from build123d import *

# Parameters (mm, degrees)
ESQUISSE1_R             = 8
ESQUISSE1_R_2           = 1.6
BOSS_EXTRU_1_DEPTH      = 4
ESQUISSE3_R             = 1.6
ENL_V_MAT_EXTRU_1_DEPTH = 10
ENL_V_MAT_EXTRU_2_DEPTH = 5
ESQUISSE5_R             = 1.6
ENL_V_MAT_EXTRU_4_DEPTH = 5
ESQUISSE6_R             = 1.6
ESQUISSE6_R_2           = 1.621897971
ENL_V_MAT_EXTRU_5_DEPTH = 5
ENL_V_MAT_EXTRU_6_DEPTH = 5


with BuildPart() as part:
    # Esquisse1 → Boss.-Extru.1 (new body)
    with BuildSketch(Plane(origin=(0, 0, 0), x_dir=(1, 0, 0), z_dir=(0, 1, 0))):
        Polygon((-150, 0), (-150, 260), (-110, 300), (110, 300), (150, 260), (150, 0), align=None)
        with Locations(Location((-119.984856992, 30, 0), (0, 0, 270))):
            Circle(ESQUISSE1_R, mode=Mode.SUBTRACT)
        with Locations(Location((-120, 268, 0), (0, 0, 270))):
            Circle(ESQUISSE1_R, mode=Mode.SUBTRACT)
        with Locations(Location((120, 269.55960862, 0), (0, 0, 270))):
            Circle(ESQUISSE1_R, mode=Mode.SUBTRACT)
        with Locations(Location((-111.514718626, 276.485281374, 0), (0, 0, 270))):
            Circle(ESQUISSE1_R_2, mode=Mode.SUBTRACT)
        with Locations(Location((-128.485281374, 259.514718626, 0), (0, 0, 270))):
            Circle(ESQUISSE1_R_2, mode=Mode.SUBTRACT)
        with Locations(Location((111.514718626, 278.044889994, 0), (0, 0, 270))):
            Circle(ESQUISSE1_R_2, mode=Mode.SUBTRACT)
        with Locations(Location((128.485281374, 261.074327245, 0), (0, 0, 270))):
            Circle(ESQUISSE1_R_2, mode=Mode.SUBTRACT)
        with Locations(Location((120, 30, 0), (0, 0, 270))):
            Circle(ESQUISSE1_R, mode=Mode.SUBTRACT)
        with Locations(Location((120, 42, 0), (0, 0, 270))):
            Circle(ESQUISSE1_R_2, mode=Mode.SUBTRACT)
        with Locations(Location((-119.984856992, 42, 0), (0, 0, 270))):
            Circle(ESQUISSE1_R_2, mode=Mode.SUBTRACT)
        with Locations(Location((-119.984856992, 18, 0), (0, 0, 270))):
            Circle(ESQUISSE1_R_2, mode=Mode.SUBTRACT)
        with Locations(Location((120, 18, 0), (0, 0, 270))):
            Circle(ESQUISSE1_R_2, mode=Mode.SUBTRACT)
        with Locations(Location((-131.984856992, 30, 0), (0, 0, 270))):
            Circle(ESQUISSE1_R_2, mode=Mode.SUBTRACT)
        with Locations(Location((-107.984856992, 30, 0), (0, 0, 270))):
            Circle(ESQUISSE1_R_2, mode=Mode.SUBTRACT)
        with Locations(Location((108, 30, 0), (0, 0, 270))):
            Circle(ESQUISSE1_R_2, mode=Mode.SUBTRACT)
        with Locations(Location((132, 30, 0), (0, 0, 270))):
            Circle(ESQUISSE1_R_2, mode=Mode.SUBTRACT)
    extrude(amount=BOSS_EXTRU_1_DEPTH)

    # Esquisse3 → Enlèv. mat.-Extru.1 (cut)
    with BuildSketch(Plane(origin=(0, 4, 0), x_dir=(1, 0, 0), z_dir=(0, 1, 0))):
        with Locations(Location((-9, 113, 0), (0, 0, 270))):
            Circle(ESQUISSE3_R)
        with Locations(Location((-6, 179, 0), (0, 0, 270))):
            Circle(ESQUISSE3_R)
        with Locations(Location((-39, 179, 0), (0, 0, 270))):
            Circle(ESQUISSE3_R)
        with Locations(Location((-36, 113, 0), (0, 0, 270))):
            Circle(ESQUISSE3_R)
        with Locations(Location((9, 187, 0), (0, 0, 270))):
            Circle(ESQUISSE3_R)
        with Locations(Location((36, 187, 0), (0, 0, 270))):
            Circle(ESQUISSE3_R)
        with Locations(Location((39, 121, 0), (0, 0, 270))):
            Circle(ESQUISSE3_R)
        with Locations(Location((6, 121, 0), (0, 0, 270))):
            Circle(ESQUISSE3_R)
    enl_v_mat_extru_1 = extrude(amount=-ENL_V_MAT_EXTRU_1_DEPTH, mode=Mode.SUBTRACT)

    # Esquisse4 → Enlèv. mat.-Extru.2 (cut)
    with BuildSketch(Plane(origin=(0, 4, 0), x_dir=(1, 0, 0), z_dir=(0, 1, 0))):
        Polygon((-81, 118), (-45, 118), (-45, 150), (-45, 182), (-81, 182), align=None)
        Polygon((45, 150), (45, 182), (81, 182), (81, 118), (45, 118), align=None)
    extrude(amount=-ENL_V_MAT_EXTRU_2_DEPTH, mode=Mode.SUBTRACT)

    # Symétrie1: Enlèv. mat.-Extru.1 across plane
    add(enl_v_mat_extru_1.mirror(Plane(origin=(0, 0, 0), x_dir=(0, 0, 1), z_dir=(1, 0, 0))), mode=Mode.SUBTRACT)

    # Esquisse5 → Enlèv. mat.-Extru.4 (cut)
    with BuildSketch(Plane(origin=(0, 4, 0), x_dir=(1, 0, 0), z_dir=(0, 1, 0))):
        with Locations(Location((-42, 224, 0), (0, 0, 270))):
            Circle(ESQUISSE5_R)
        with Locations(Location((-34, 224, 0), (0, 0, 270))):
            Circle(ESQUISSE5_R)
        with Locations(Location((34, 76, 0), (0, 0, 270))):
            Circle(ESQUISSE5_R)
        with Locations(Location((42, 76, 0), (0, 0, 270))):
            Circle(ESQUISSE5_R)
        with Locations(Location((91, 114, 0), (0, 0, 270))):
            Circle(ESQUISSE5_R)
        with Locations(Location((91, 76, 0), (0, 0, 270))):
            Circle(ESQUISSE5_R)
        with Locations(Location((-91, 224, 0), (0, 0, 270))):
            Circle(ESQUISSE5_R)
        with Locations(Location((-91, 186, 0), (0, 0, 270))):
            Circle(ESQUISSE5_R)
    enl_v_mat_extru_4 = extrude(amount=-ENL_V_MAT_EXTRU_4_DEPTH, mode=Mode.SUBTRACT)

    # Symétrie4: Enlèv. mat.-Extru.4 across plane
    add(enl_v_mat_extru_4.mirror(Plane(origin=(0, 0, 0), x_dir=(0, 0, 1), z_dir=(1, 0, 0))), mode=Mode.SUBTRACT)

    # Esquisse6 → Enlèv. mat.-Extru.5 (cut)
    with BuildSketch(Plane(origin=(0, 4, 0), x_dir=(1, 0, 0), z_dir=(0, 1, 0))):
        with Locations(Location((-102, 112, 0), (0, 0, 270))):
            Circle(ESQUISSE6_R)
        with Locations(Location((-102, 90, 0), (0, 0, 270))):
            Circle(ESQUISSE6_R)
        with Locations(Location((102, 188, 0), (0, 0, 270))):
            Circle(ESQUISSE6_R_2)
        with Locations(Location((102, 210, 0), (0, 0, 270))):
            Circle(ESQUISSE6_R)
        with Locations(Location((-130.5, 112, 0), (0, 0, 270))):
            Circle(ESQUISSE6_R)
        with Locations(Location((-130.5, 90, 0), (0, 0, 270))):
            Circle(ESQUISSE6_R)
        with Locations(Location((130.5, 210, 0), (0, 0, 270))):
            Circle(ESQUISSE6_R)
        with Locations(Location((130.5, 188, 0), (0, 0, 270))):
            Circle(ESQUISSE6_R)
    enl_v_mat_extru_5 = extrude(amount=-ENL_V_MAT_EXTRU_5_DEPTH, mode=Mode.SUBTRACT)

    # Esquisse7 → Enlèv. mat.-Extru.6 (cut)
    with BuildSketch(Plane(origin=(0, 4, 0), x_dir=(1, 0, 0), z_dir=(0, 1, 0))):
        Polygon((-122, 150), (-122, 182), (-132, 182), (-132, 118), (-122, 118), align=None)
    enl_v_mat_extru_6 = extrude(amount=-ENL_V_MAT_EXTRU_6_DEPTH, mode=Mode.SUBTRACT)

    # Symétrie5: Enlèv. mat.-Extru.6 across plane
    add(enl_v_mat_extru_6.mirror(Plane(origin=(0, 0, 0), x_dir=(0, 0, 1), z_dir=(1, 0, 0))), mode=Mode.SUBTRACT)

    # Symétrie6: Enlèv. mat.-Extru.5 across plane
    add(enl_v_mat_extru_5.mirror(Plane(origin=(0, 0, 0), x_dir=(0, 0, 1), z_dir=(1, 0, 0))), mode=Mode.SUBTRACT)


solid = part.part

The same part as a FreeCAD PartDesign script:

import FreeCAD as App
import Part
import Sketcher
from FreeCAD import Vector

doc = App.newDocument("Part")
body = doc.addObject("PartDesign::Body", "Body")

# Sketch on XZ plane
sketch1 = body.newObject("Sketcher::SketchObject", "Sketch")
sketch1.AttachmentSupport = (doc.getObject("XZ_Plane"), [""])
sketch1.MapMode = "FlatFace"
sketch1.addGeometry([
    Part.LineSegment(Vector(-150, -260, 0), Vector(-150, 0, 0)),  # 0
    Part.LineSegment(Vector(-150, 0, 0), Vector(150, 0, 0)),  # 1
    Part.LineSegment(Vector(150, 0, 0), Vector(150, -260, 0)),  # 2
    Part.LineSegment(Vector(150, -260, 0), Vector(110, -300, 0)),  # 3
    Part.LineSegment(Vector(110, -300, 0), Vector(-110, -300, 0)),  # 4
    Part.LineSegment(Vector(-110, -300, 0), Vector(-150, -260, 0)),  # 5
    Part.Circle(Vector(120, -18, 0), Vector(0, 0, 1), 1.6),  # 6
    Part.Circle(Vector(132, -30, 0), Vector(0, 0, 1), 1.6),  # 7
    Part.Circle(Vector(120, -30, 0), Vector(0, 0, 1), 8),  # 8
    Part.Circle(Vector(108, -30, 0), Vector(0, 0, 1), 1.6),  # 9
    Part.Circle(Vector(120, -42, 0), Vector(0, 0, 1), 1.6),  # 10
    Part.Circle(Vector(-108, -30, 0), Vector(0, 0, 1), 1.6),  # 11
    Part.Circle(Vector(-120, -18, 0), Vector(0, 0, 1), 1.6),  # 12
    Part.Circle(Vector(-120, -30, 0), Vector(0, 0, 1), 8),  # 13
    Part.Circle(Vector(-132, -30, 0), Vector(0, 0, 1), 1.6),  # 14
    Part.Circle(Vector(-120, -42, 0), Vector(0, 0, 1), 1.6),  # 15
    Part.Circle(Vector(128.5, -261.1, 0), Vector(0, 0, 1), 1.6),  # 16
    Part.Circle(Vector(120, -269.6, 0), Vector(0, 0, 1), 8),  # 17
    Part.Circle(Vector(111.5, -278, 0), Vector(0, 0, 1), 1.6),  # 18
    Part.Circle(Vector(-128.5, -259.5, 0), Vector(0, 0, 1), 1.6),  # 19
    Part.Circle(Vector(-111.5, -276.5, 0), Vector(0, 0, 1), 1.6),  # 20
    Part.Circle(Vector(-120, -268, 0), Vector(0, 0, 1), 8),  # 21
], False)
sketch1.addConstraint([
    Sketcher.Constraint("Coincident", 0, 2, 1, 1),
    Sketcher.Constraint("Coincident", 1, 2, 2, 1),
    Sketcher.Constraint("Coincident", 2, 2, 3, 1),
    Sketcher.Constraint("Coincident", 3, 2, 4, 1),
    Sketcher.Constraint("Coincident", 4, 2, 5, 1),
    Sketcher.Constraint("Coincident", 5, 2, 0, 1),
    Sketcher.Constraint("Vertical", 0),
    Sketcher.Constraint("Horizontal", 1),
    Sketcher.Constraint("Vertical", 2),
    Sketcher.Constraint("Horizontal", 4),
    Sketcher.Constraint("Equal", 6, 7),
    Sketcher.Constraint("Equal", 7, 9),
    Sketcher.Constraint("Equal", 9, 10),
    Sketcher.Constraint("Equal", 10, 11),
    Sketcher.Constraint("Equal", 11, 12),
    Sketcher.Constraint("Equal", 8, 13),
    Sketcher.Constraint("Equal", 12, 14),
    Sketcher.Constraint("Equal", 14, 15),
    Sketcher.Constraint("Equal", 15, 16),
    Sketcher.Constraint("Equal", 13, 17),
    Sketcher.Constraint("Equal", 16, 18),
    Sketcher.Constraint("Equal", 18, 19),
    Sketcher.Constraint("Equal", 19, 20),
    Sketcher.Constraint("Equal", 17, 21),
    Sketcher.Constraint("Symmetric", 0, 2, 1, 2, -1, 1),
    Sketcher.Constraint("Perpendicular", 3, 5),
    Sketcher.Constraint("Horizontal", 7, 3, 8, 3),
    Sketcher.Constraint("Horizontal", 8, 3, 9, 3),
    Sketcher.Constraint("Horizontal", 9, 3, 11, 3),
    Sketcher.Constraint("Horizontal", 6, 3, 12, 3),
    Sketcher.Constraint("Horizontal", 11, 3, 13, 3),
    Sketcher.Constraint("Horizontal", 13, 3, 14, 3),
    Sketcher.Constraint("Horizontal", 10, 3, 15, 3),
    Sketcher.Constraint("Horizontal", 2, 2, 5, 2),
    Sketcher.Constraint("Vertical", 6, 3, 8, 3),
    Sketcher.Constraint("Vertical", 8, 3, 10, 3),
    Sketcher.Constraint("Vertical", 12, 3, 13, 3),
    Sketcher.Constraint("Vertical", 13, 3, 15, 3),
    Sketcher.Constraint("Vertical", 10, 3, 17, 3),
    Sketcher.Constraint("Equal", 3, 5),
    Sketcher.Constraint("Diameter", 8, 16.0),
    Sketcher.Constraint("Diameter", 6, 3.2),
    Sketcher.Constraint("DistanceX", 1, 1, 1, 2, 300.0),
    Sketcher.Constraint("DistanceX", 4, 2, 4, 1, 220.0),
    Sketcher.Constraint("DistanceY", 0, 1, 0, 2, 260.0),
    Sketcher.Constraint("DistanceX", -1, 1, 6, 3, 120.0),
    Sketcher.Constraint("DistanceY", 6, 3, -1, 1, 18.0),
    Sketcher.Constraint("DistanceX", -1, 1, 7, 3, 132.0),
    Sketcher.Constraint("DistanceY", 7, 3, -1, 1, 30.0),
    Sketcher.Constraint("DistanceX", -1, 1, 9, 3, 108.0),
    Sketcher.Constraint("DistanceY", 10, 3, -1, 1, 42.0),
    Sketcher.Constraint("DistanceX", 21, 3, -1, 1, 120.0),
    Sketcher.Constraint("DistanceY", 21, 3, -1, 1, 268.0),
    Sketcher.Constraint("DistanceX", 12, 3, 11, 3, 12.0),
    Sketcher.Constraint("DistanceX", 14, 3, 13, 3, 12.0),
    Sketcher.Constraint("DistanceX", 19, 3, 18, 3, 240.0),
    Sketcher.Constraint("DistanceX", 20, 3, 16, 3, 240.0),
    Sketcher.Constraint("DistanceX", -1, 1, 16, 3, 128.485281),
    Sketcher.Constraint("DistanceY", 17, 3, -1, 1, 269.559609),
    Sketcher.Constraint("DistanceX", -1, 1, 18, 3, 111.514719),
    Sketcher.Constraint("DistanceY", 18, 3, -1, 1, 278.04489),
    Sketcher.Constraint("DistanceY", 19, 3, -1, 1, 259.514719),
    Sketcher.Constraint("DistanceY", 20, 3, -1, 1, 276.485281),
    Sketcher.Constraint("DistanceY", 17, 3, 16, 3, 8.485281),
    Sketcher.Constraint("DistanceX", 15, 3, 20, 3, 8.470138),
])
pad1 = body.newObject("PartDesign::Pad", "Pad")
pad1.Profile = sketch1
pad1.Length = 4
pad1.Reversed = True

# Sketch on XZ plane
sketch2 = body.newObject("Sketcher::SketchObject", "Sketch001")
sketch2.AttachmentSupport = (doc.getObject("XZ_Plane"), [""])
sketch2.MapMode = "FlatFace"
sketch2.AttachmentOffset = App.Placement(Vector(0, 0, -4), App.Rotation())
sketch2.addGeometry([
    Part.Circle(Vector(-9, -113, 0), Vector(0, 0, 1), 1.6),  # 0
    Part.Circle(Vector(-6, -179, 0), Vector(0, 0, 1), 1.6),  # 1
    Part.Circle(Vector(-39, -179, 0), Vector(0, 0, 1), 1.6),  # 2
    Part.Circle(Vector(-36, -113, 0), Vector(0, 0, 1), 1.6),  # 3
    Part.Circle(Vector(9, -187, 0), Vector(0, 0, 1), 1.6),  # 4
    Part.Circle(Vector(36, -187, 0), Vector(0, 0, 1), 1.6),  # 5
    Part.Circle(Vector(39, -121, 0), Vector(0, 0, 1), 1.6),  # 6
    Part.Circle(Vector(6, -121, 0), Vector(0, 0, 1), 1.6),  # 7
], False)
sketch2.addConstraint([
    Sketcher.Constraint("Equal", 0, 1),
    Sketcher.Constraint("Equal", 1, 2),
    Sketcher.Constraint("Equal", 2, 3),
    Sketcher.Constraint("Equal", 3, 4),
    Sketcher.Constraint("Equal", 4, 5),
    Sketcher.Constraint("Equal", 5, 6),
    Sketcher.Constraint("Equal", 6, 7),
    Sketcher.Constraint("Horizontal", 1, 3, 2, 3),
    Sketcher.Constraint("Horizontal", 0, 3, 3, 3),
    Sketcher.Constraint("Horizontal", 4, 3, 5, 3),
    Sketcher.Constraint("Horizontal", 6, 3, 7, 3),
    Sketcher.Constraint("Diameter", 0, 3.2),
    Sketcher.Constraint("DistanceX", 0, 3, -1, 1, 9.0),
    Sketcher.Constraint("DistanceY", 0, 3, -1, 1, 113.0),
    Sketcher.Constraint("DistanceX", 1, 3, -1, 1, 6.0),
    Sketcher.Constraint("DistanceY", 1, 3, -1, 1, 179.0),
    Sketcher.Constraint("DistanceX", 2, 3, -1, 1, 39.0),
    Sketcher.Constraint("DistanceX", 3, 3, -1, 1, 36.0),
    Sketcher.Constraint("DistanceX", -1, 1, 4, 3, 9.0),
    Sketcher.Constraint("DistanceY", 4, 3, -1, 1, 187.0),
    Sketcher.Constraint("DistanceX", -1, 1, 5, 3, 36.0),
    Sketcher.Constraint("DistanceX", -1, 1, 6, 3, 39.0),
    Sketcher.Constraint("DistanceY", 6, 3, -1, 1, 121.0),
    Sketcher.Constraint("DistanceX", -1, 1, 7, 3, 6.0),
])
pocket1 = body.newObject("PartDesign::Pocket", "Pocket")
pocket1.Profile = sketch2
pocket1.Length = 10
pocket1.Reversed = True

# Sketch on XZ plane
sketch3 = body.newObject("Sketcher::SketchObject", "Sketch002")
sketch3.AttachmentSupport = (doc.getObject("XZ_Plane"), [""])
sketch3.MapMode = "FlatFace"
sketch3.AttachmentOffset = App.Placement(Vector(0, 0, -4), App.Rotation())
sketch3.addGeometry([
    Part.LineSegment(Vector(-81, -118, 0), Vector(-45, -118, 0)),  # 0
    Part.LineSegment(Vector(-45, -118, 0), Vector(-45, -182, 0)),  # 1
    Part.LineSegment(Vector(-45, -182, 0), Vector(-81, -182, 0)),  # 2
    Part.LineSegment(Vector(-81, -182, 0), Vector(-81, -118, 0)),  # 3
    Part.LineSegment(Vector(45, -182, 0), Vector(45, -118, 0)),  # 4
    Part.LineSegment(Vector(45, -118, 0), Vector(81, -118, 0)),  # 5
    Part.LineSegment(Vector(81, -118, 0), Vector(81, -182, 0)),  # 6
    Part.LineSegment(Vector(81, -182, 0), Vector(45, -182, 0)),  # 7
], False)
sketch3.addConstraint([
    Sketcher.Constraint("Coincident", 0, 2, 1, 1),
    Sketcher.Constraint("Coincident", 1, 2, 2, 1),
    Sketcher.Constraint("Coincident", 2, 2, 3, 1),
    Sketcher.Constraint("Coincident", 3, 2, 0, 1),
    Sketcher.Constraint("Coincident", 4, 2, 5, 1),
    Sketcher.Constraint("Coincident", 5, 2, 6, 1),
    Sketcher.Constraint("Coincident", 6, 2, 7, 1),
    Sketcher.Constraint("Coincident", 7, 2, 4, 1),
    Sketcher.Constraint("Horizontal", 0),
    Sketcher.Constraint("Vertical", 1),
    Sketcher.Constraint("Horizontal", 2),
    Sketcher.Constraint("Vertical", 3),
    Sketcher.Constraint("Vertical", 4),
    Sketcher.Constraint("Horizontal", 5),
    Sketcher.Constraint("Vertical", 6),
    Sketcher.Constraint("Horizontal", 7),
    Sketcher.Constraint("Symmetric", 0, 2, 4, 2, -2),
    Sketcher.Constraint("Symmetric", 2, 2, 6, 2, -2),
    Sketcher.Constraint("DistanceX", 0, 1, 0, 2, 36.0),
    Sketcher.Constraint("DistanceY", 1, 2, 1, 1, 64.0),
    Sketcher.Constraint("DistanceX", 0, 2, -1, 1, 45.0),
    Sketcher.Constraint("DistanceY", 0, 2, -1, 1, 118.0),
])
pocket2 = body.newObject("PartDesign::Pocket", "Pocket001")
pocket2.Profile = sketch3
pocket2.Length = 5
pocket2.Reversed = True
doc.recompute()

mirrored = body.newObject("PartDesign::Mirrored", "Mirrored")
mirrored.Originals = [pocket1]
mirrored.MirrorPlane = (doc.getObject("YZ_Plane"), [""])
body.Tip = mirrored

# Sketch on XZ plane
sketch4 = body.newObject("Sketcher::SketchObject", "Sketch003")
sketch4.AttachmentSupport = (doc.getObject("XZ_Plane"), [""])
sketch4.MapMode = "FlatFace"
sketch4.AttachmentOffset = App.Placement(Vector(0, 0, -4), App.Rotation())
sketch4.addGeometry([
    Part.Circle(Vector(-42, -224, 0), Vector(0, 0, 1), 1.6),  # 0
    Part.Circle(Vector(-34, -224, 0), Vector(0, 0, 1), 1.6),  # 1
    Part.Circle(Vector(34, -76, 0), Vector(0, 0, 1), 1.6),  # 2
    Part.Circle(Vector(42, -76, 0), Vector(0, 0, 1), 1.6),  # 3
    Part.Circle(Vector(91, -114, 0), Vector(0, 0, 1), 1.6),  # 4
    Part.Circle(Vector(91, -76, 0), Vector(0, 0, 1), 1.6),  # 5
    Part.Circle(Vector(-91, -224, 0), Vector(0, 0, 1), 1.6),  # 6
    Part.Circle(Vector(-91, -186, 0), Vector(0, 0, 1), 1.6),  # 7
], False)
sketch4.addConstraint([
    Sketcher.Constraint("Equal", 0, 1),
    Sketcher.Constraint("Equal", 1, 2),
    Sketcher.Constraint("Equal", 2, 3),
    Sketcher.Constraint("Equal", 3, 4),
    Sketcher.Constraint("Equal", 4, 5),
    Sketcher.Constraint("Equal", 5, 6),
    Sketcher.Constraint("Equal", 6, 7),
    Sketcher.Constraint("Horizontal", 0, 3, 1, 3),
    Sketcher.Constraint("Horizontal", 2, 3, 3, 3),
    Sketcher.Constraint("Horizontal", 3, 3, 5, 3),
    Sketcher.Constraint("Horizontal", 1, 3, 6, 3),
    Sketcher.Constraint("Vertical", 4, 3, 5, 3),
    Sketcher.Constraint("Vertical", 6, 3, 7, 3),
    Sketcher.Constraint("Diameter", 0, 3.2),
    Sketcher.Constraint("DistanceX", 0, 3, -1, 1, 42.0),
    Sketcher.Constraint("DistanceY", 0, 3, -1, 1, 224.0),
    Sketcher.Constraint("DistanceX", 1, 3, -1, 1, 34.0),
    Sketcher.Constraint("DistanceX", -1, 1, 2, 3, 34.0),
    Sketcher.Constraint("DistanceY", 2, 3, -1, 1, 76.0),
    Sketcher.Constraint("DistanceX", -1, 1, 3, 3, 42.0),
    Sketcher.Constraint("DistanceX", -1, 1, 4, 3, 91.0),
    Sketcher.Constraint("DistanceY", 4, 3, -1, 1, 114.0),
    Sketcher.Constraint("DistanceX", 6, 3, -1, 1, 91.0),
    Sketcher.Constraint("DistanceY", 7, 3, -1, 1, 186.0),
])
pocket3 = body.newObject("PartDesign::Pocket", "Pocket002")
pocket3.Profile = sketch4
pocket3.Length = 5
pocket3.Reversed = True
doc.recompute()

mirrored2 = body.newObject("PartDesign::Mirrored", "Mirrored001")
mirrored2.Originals = [pocket3]
mirrored2.MirrorPlane = (doc.getObject("YZ_Plane"), [""])
body.Tip = mirrored2

# Sketch on XZ plane
sketch5 = body.newObject("Sketcher::SketchObject", "Sketch004")
sketch5.AttachmentSupport = (doc.getObject("XZ_Plane"), [""])
sketch5.MapMode = "FlatFace"
sketch5.AttachmentOffset = App.Placement(Vector(0, 0, -4), App.Rotation())
sketch5.addGeometry([
    Part.Circle(Vector(-102, -112, 0), Vector(0, 0, 1), 1.6),  # 0
    Part.Circle(Vector(-102, -90, 0), Vector(0, 0, 1), 1.6),  # 1
    Part.Circle(Vector(102, -188, 0), Vector(0, 0, 1), 1.6),  # 2
    Part.Circle(Vector(102, -210, 0), Vector(0, 0, 1), 1.6),  # 3
    Part.Circle(Vector(-130.5, -112, 0), Vector(0, 0, 1), 1.6),  # 4
    Part.Circle(Vector(-130.5, -90, 0), Vector(0, 0, 1), 1.6),  # 5
    Part.Circle(Vector(130.5, -210, 0), Vector(0, 0, 1), 1.6),  # 6
    Part.Circle(Vector(130.5, -188, 0), Vector(0, 0, 1), 1.6),  # 7
], False)
sketch5.addConstraint([
    Sketcher.Constraint("Equal", 0, 1),
    Sketcher.Constraint("Equal", 1, 3),
    Sketcher.Constraint("Equal", 3, 4),
    Sketcher.Constraint("Equal", 4, 5),
    Sketcher.Constraint("Equal", 5, 6),
    Sketcher.Constraint("Equal", 6, 7),
    Sketcher.Constraint("Horizontal", 0, 3, 4, 3),
    Sketcher.Constraint("Horizontal", 1, 3, 5, 3),
    Sketcher.Constraint("Horizontal", 3, 3, 6, 3),
    Sketcher.Constraint("Horizontal", 2, 3, 7, 3),
    Sketcher.Constraint("Vertical", 0, 3, 1, 3),
    Sketcher.Constraint("Vertical", 2, 3, 3, 3),
    Sketcher.Constraint("Vertical", 4, 3, 5, 3),
    Sketcher.Constraint("Vertical", 6, 3, 7, 3),
    Sketcher.Constraint("Diameter", 0, 3.2),
    Sketcher.Constraint("DistanceX", 0, 3, -1, 1, 102.0),
    Sketcher.Constraint("DistanceY", 0, 3, -1, 1, 112.0),
    Sketcher.Constraint("DistanceY", 1, 3, -1, 1, 90.0),
    Sketcher.Constraint("DistanceX", -1, 1, 2, 3, 102.0),
    Sketcher.Constraint("DistanceY", 2, 3, -1, 1, 188.0),
    Sketcher.Constraint("DistanceY", 3, 3, -1, 1, 210.0),
    Sketcher.Constraint("DistanceX", 4, 3, 6, 3, 261.0),
    Sketcher.Constraint("DistanceX", 4, 3, -1, 1, 130.5),
    Sketcher.Constraint("Diameter", 2, 3.243796),
])
pocket4 = body.newObject("PartDesign::Pocket", "Pocket003")
pocket4.Profile = sketch5
pocket4.Length = 5
pocket4.Reversed = True

# Sketch on XZ plane
sketch6 = body.newObject("Sketcher::SketchObject", "Sketch005")
sketch6.AttachmentSupport = (doc.getObject("XZ_Plane"), [""])
sketch6.MapMode = "FlatFace"
sketch6.AttachmentOffset = App.Placement(Vector(0, 0, -4), App.Rotation())
sketch6.addGeometry([
    Part.LineSegment(Vector(-122, -182, 0), Vector(-132, -182, 0)),
    Part.LineSegment(Vector(-132, -182, 0), Vector(-132, -118, 0)),
    Part.LineSegment(Vector(-132, -118, 0), Vector(-122, -118, 0)),
    Part.LineSegment(Vector(-122, -118, 0), Vector(-122, -182, 0)),
], False)
sketch6.addConstraint([
    Sketcher.Constraint("Coincident", 0, 2, 1, 1),
    Sketcher.Constraint("Coincident", 1, 2, 2, 1),
    Sketcher.Constraint("Coincident", 2, 2, 3, 1),
    Sketcher.Constraint("Coincident", 3, 2, 0, 1),
    Sketcher.Constraint("Horizontal", 0),
    Sketcher.Constraint("Vertical", 1),
    Sketcher.Constraint("Horizontal", 2),
    Sketcher.Constraint("Vertical", 3),
    Sketcher.Constraint("DistanceX", 0, 2, 0, 1, 10.0),
    Sketcher.Constraint("DistanceY", 1, 1, 1, 2, 64.0),
    Sketcher.Constraint("DistanceX", 0, 2, -1, 1, 132.0),
    Sketcher.Constraint("DistanceY", 0, 2, -1, 1, 182.0),
])
pocket5 = body.newObject("PartDesign::Pocket", "Pocket004")
pocket5.Profile = sketch6
pocket5.Length = 5
pocket5.Reversed = True
doc.recompute()

mirrored3 = body.newObject("PartDesign::Mirrored", "Mirrored002")
mirrored3.Originals = [pocket5]
mirrored3.MirrorPlane = (doc.getObject("YZ_Plane"), [""])
body.Tip = mirrored3
doc.recompute()

mirrored4 = body.newObject("PartDesign::Mirrored", "Mirrored003")
mirrored4.Originals = [pocket4]
mirrored4.MirrorPlane = (doc.getObject("YZ_Plane"), [""])
body.Tip = mirrored4

doc.recompute()
